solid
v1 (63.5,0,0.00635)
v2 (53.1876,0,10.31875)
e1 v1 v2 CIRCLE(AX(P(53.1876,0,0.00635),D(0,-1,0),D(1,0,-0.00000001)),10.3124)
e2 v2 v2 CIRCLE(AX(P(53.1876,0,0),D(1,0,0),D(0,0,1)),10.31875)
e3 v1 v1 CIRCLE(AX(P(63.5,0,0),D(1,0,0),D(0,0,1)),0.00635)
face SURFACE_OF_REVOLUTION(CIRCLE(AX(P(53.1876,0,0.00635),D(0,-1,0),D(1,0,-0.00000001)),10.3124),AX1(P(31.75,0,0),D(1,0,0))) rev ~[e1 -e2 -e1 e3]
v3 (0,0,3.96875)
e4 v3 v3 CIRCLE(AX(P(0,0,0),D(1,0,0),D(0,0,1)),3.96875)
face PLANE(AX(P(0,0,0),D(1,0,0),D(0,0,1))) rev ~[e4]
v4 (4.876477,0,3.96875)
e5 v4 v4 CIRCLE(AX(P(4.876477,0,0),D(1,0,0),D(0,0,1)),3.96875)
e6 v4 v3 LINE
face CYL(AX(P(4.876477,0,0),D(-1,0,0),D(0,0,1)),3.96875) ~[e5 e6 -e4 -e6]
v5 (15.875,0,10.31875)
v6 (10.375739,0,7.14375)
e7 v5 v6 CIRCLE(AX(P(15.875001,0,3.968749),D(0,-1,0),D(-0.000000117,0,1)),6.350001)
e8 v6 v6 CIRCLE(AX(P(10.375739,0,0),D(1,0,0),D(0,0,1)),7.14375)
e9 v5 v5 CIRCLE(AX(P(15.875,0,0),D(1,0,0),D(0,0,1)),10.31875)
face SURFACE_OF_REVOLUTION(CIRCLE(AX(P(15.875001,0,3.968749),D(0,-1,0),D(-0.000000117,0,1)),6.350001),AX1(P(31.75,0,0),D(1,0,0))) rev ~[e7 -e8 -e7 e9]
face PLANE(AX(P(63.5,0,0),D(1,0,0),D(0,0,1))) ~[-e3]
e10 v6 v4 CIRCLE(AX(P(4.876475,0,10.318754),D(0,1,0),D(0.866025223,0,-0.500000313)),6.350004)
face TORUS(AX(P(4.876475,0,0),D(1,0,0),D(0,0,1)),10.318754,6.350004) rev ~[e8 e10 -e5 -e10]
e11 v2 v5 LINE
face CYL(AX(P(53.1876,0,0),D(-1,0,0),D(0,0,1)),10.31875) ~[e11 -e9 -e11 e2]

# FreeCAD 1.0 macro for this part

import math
import FreeCAD as App
import Part
import Sketcher
Q = App.Units.Quantity

doc = App.newDocument("Part")
body = doc.addObject("PartDesign::Body", "Body")

# Sketch on XZ plane
sketch1 = body.newObject("Sketcher::SketchObject", "Sketch")
sketch1.AttachmentSupport = (doc.getObject("XZ_Plane"), [""])
sketch1.MapMode = "FlatFace"
sketch1.addGeometry([
    Part.LineSegment(App.Vector(0, 3.96875, 0), App.Vector(0, 0, 0)),  # 0
    Part.LineSegment(App.Vector(0, 0, 0), App.Vector(63.5, 0, 0)),  # 1
    Part.LineSegment(App.Vector(63.5, 0, 0), App.Vector(63.5, 0.00635, 0)),  # 2
    Part.ArcOfCircle(Part.Circle(App.Vector(53.1876, 0.00635, 0), App.Vector(0, 0, 1), 10.3124), math.radians(-0.000001), math.radians(90.000001)),  # 3
    Part.LineSegment(App.Vector(53.1876, 10.31875, 0), App.Vector(15.875, 10.31875, 0)),  # 4
    Part.ArcOfCircle(Part.Circle(App.Vector(15.875001, 3.968749, 0), App.Vector(0, 0, 1), 6.350001), math.radians(90.000007), math.radians(149.999996)),  # 5
    Part.ArcOfCircle(Part.Circle(App.Vector(4.876475, 10.318754, 0), App.Vector(0, 0, 1), 6.350004), math.radians(-89.999985), math.radians(-30.000021)),  # 6
    Part.LineSegment(App.Vector(4.876477, 3.96875, 0), App.Vector(0, 3.96875, 0)),  # 7
], False)
sketch1.addConstraint([
    Sketcher.Constraint("Coincident", 0, 2, 1, 1),
    Sketcher.Constraint("Coincident", 1, 2, 2, 1),
    Sketcher.Constraint("Tangent", 2, 2, 3, 1),
    Sketcher.Constraint("Tangent", 3, 2, 4, 1),
    Sketcher.Constraint("Tangent", 4, 2, 5, 1),
    Sketcher.Constraint("Tangent", 5, 2, 6, 2),
    Sketcher.Constraint("Tangent", 6, 1, 7, 1),
    Sketcher.Constraint("Coincident", 7, 2, 0, 1),
    Sketcher.Constraint("Vertical", 0),
    Sketcher.Constraint("Horizontal", 1),
    Sketcher.Constraint("Horizontal", 4),
    Sketcher.Constraint("Horizontal", 7),
    Sketcher.Constraint("Coincident", 0, 2, -1, 1),
    Sketcher.Constraint("Horizontal", 3, 3, 2, 2),
    Sketcher.Constraint("Horizontal", 5, 3, 6, 1),
    Sketcher.Constraint("Radius", 5, Q("0.25 in")),
    Sketcher.Constraint("Radius", 6, Q("0.2500002 in")),
    Sketcher.Constraint("DistanceX", 1, 1, 1, 2, Q("2.5 in")),
    Sketcher.Constraint("Radius", 3, Q("0.406 in")),
    Sketcher.Constraint("DistanceX", 4, 2, 4, 1, Q("1.469 in")),
    Sketcher.Constraint("DistanceY", 0, 2, 0, 1, Q("0.15625 in")),
])
revolution = body.newObject("PartDesign::Revolution", "Revolution")
revolution.Profile = sketch1
revolution.ReferenceAxis = (sketch1, ["H_Axis"])
revolution.Angle = 360

doc.recompute()
